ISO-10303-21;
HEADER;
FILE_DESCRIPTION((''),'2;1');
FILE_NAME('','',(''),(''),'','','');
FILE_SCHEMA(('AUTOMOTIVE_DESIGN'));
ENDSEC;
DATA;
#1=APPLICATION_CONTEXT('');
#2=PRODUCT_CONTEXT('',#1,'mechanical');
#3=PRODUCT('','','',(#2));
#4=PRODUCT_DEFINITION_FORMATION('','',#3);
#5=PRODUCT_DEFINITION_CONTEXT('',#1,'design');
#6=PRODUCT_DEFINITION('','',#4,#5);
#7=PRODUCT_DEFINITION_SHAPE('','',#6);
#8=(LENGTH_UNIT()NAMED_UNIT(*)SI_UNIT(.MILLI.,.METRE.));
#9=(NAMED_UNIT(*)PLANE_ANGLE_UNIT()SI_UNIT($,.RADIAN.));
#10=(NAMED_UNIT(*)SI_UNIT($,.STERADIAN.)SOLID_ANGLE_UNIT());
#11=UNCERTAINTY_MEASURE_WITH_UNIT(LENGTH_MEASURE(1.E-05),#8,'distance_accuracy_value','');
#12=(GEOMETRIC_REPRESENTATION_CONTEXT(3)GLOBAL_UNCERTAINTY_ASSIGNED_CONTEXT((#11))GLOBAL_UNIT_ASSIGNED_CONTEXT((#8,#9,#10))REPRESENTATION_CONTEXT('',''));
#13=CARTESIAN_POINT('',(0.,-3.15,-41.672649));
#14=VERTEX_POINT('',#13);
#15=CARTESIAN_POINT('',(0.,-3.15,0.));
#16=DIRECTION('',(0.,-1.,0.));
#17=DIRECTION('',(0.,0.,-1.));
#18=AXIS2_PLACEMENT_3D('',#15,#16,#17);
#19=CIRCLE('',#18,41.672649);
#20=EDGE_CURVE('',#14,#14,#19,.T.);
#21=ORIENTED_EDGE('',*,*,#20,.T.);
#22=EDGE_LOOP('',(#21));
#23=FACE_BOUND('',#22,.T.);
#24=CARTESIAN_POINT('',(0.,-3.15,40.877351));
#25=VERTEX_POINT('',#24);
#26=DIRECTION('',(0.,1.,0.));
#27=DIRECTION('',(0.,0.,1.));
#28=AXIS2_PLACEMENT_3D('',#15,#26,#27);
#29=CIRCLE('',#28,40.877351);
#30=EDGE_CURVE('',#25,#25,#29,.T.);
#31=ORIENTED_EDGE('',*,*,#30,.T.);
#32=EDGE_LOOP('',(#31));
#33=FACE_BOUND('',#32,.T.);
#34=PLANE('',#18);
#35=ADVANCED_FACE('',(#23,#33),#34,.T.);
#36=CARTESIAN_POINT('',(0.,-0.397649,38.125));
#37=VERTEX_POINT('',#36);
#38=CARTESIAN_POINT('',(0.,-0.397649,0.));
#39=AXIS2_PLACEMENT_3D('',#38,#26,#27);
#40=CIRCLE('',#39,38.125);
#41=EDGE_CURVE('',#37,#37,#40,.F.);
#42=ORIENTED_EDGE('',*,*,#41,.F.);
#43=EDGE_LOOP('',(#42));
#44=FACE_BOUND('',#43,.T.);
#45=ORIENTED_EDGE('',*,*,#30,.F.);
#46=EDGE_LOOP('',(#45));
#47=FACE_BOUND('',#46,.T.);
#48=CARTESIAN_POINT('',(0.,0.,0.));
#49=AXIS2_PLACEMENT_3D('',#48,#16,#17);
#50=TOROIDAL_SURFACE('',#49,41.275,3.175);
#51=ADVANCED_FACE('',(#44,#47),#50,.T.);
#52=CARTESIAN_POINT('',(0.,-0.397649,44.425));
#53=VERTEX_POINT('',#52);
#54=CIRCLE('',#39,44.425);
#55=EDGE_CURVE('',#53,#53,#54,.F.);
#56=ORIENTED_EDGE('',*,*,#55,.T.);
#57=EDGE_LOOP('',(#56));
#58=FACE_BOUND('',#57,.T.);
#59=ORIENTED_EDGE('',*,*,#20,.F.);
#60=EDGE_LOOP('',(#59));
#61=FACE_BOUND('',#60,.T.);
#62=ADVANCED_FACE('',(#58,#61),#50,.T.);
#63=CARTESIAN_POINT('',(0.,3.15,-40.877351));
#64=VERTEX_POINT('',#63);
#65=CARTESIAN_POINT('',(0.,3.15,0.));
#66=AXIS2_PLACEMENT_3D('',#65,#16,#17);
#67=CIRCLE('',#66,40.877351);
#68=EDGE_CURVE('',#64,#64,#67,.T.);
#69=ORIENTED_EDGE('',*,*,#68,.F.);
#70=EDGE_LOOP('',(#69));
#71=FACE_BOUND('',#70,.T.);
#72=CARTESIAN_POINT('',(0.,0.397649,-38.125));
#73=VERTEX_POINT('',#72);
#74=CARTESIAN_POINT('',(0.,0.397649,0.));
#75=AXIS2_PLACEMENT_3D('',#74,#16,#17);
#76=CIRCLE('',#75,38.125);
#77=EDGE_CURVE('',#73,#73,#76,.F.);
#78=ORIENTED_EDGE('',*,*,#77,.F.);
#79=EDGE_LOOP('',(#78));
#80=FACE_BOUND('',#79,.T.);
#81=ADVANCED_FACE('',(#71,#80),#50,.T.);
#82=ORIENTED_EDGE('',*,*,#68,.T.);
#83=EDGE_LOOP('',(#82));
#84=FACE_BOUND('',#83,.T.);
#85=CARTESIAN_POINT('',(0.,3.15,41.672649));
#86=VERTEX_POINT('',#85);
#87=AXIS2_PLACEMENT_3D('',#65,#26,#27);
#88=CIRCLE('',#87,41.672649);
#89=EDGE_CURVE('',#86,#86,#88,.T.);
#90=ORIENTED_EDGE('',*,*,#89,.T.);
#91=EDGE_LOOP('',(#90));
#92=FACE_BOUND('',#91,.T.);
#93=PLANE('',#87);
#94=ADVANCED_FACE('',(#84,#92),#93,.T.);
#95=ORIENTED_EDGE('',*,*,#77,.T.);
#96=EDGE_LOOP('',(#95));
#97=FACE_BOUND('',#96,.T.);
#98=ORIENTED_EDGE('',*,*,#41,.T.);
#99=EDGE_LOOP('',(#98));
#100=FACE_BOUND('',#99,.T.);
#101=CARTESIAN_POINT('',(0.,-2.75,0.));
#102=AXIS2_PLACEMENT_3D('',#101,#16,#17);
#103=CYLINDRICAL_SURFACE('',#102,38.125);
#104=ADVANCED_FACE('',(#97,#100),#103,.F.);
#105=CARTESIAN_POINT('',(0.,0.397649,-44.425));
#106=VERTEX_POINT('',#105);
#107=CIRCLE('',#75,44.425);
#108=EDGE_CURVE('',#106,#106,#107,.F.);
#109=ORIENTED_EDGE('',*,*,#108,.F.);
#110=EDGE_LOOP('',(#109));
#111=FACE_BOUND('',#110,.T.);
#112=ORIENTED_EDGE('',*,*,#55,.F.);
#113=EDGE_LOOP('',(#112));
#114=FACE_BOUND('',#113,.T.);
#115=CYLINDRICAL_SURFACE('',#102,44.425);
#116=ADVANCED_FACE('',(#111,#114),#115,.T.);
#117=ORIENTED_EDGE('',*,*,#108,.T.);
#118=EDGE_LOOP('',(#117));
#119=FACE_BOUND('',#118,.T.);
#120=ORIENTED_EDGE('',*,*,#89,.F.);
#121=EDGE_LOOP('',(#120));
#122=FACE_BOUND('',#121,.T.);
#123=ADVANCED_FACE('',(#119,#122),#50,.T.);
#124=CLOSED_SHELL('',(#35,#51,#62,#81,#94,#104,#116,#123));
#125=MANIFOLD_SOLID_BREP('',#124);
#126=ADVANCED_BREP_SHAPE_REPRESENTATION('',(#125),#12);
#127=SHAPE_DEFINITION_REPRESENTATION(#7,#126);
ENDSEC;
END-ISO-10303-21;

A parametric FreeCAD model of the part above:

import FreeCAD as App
import Part
import Sketcher
from FreeCAD import Vector
Q = App.Units.Quantity


def add_polygon(sketch, points):
    """Adds a closed chain of lines whose ends are joined by coincident constraints."""
    first, n = sketch.GeometryCount, len(points)
    for a, b in zip(points, points[1:] + points[:1]):
        sketch.addGeometry(Part.LineSegment(App.Vector(*a, 0), App.Vector(*b, 0)), False)
    for i in range(n):
        sketch.addConstraint(Sketcher.Constraint("Coincident", first + i, 2, first + (i + 1) % n, 1))

doc = App.newDocument("Part")
params = doc.addObject("Spreadsheet::Sheet", "Params")
for row, (alias, value) in enumerate([
    ("sketch1_diameter", "6.35 mm"),
    ("revolution_angle", "360 deg"),
    ("sketch2_width", "5 mm"),
    ("sketch2_width2", "6.3 mm"),
    ("groove_angle", "360 deg"),
], start=1):
    params.set(f"A{row}", alias)
    params.set(f"B{row}", "=" + value)
    params.setAlias(f"B{row}", alias)

body = doc.addObject("PartDesign::Body", "Body")

# Sketch on XY plane
sketch1 = doc.addObject("Sketcher::SketchObject", "Sketch")
body.addObject(sketch1)
sketch1.AttachmentSupport = (doc.XY_Plane, [""])
sketch1.MapMode = "FlatFace"
sketch1.addGeometry(Part.Circle(Vector(-41.3, 0, 0), Vector(0, 0, 1), 3.2), False)
sketch1.addConstraint(Sketcher.Constraint("PointOnObject", 0, 3, -1))
sketch1.addConstraint(Sketcher.Constraint("Diameter", 0, Q("6.35 mm")))
sketch1.addConstraint(Sketcher.Constraint("DistanceX", 0, 3, -1, 1, Q("41.275 mm")))
sketch1.setExpression("Constraints[1]", "Params.sketch1_diameter")
revolution = doc.addObject("PartDesign::Revolution", "Revolution")
body.addObject(revolution)
revolution.Profile = sketch1
revolution.ReferenceAxis = (sketch1, ["V_Axis"])
revolution.setExpression("Angle", "Params.revolution_angle")

# Sketch on XY plane
sketch2 = doc.addObject("Sketcher::SketchObject", "Sketch001")
body.addObject(sketch2)
sketch2.AttachmentSupport = (doc.XY_Plane, [""])
sketch2.MapMode = "FlatFace"
add_polygon(sketch2, [(-44, -3), (-44, -8), (-38, -8), (-38, -3)])  # lines 0-3
add_polygon(sketch2, [(-49, 3), (-49, -3), (-44, -3), (-44, 3)])  # lines 4-7
add_polygon(sketch2, [(-44, 8), (-44, 3), (-38, 3), (-38, 8)])  # lines 8-11
add_polygon(sketch2, [(-38, 3), (-38, -3), (0, -3), (0, 3)])  # lines 12-15
sketch2.addConstraint(Sketcher.Constraint("Vertical", 0))
sketch2.addConstraint(Sketcher.Constraint("Horizontal", 1))
sketch2.addConstraint(Sketcher.Constraint("Vertical", 2))
sketch2.addConstraint(Sketcher.Constraint("Horizontal", 3))
sketch2.addConstraint(Sketcher.Constraint("Vertical", 4))
sketch2.addConstraint(Sketcher.Constraint("Horizontal", 5))
sketch2.addConstraint(Sketcher.Constraint("Vertical", 6))
sketch2.addConstraint(Sketcher.Constraint("Horizontal", 7))
sketch2.addConstraint(Sketcher.Constraint("Vertical", 8))
sketch2.addConstraint(Sketcher.Constraint("Horizontal", 9))
sketch2.addConstraint(Sketcher.Constraint("Vertical", 10))
sketch2.addConstraint(Sketcher.Constraint("Horizontal", 11))
sketch2.addConstraint(Sketcher.Constraint("Vertical", 12))
sketch2.addConstraint(Sketcher.Constraint("Horizontal", 13))
sketch2.addConstraint(Sketcher.Constraint("Vertical", 14))
sketch2.addConstraint(Sketcher.Constraint("Horizontal", 15))
sketch2.addConstraint(Sketcher.Constraint("Coincident", 5, 2, 3, 2))
sketch2.addConstraint(Sketcher.Constraint("Coincident", 8, 2, 6, 2))
sketch2.addConstraint(Sketcher.Constraint("Coincident", 12, 2, 2, 2))
sketch2.addConstraint(Sketcher.Constraint("Coincident", 15, 2, 9, 2))
sketch2.addConstraint(Sketcher.Constraint("Symmetric", 13, 2, 14, 2, -1, 1))
sketch2.addConstraint(Sketcher.Constraint("Equal", 7, 0))
sketch2.addConstraint(Sketcher.Constraint("Equal", 11, 4))
sketch2.addConstraint(Sketcher.Constraint("Equal", 2, 8))
sketch2.addConstraint(Sketcher.Constraint("DistanceX", 5, 1, 5, 2, Q("5 mm")))
sketch2.addConstraint(Sketcher.Constraint("DistanceX", 1, 1, 1, 2, Q("6.3 mm")))
sketch2.addConstraint(Sketcher.Constraint("DistanceX", 13, 1, 13, 2, Q("38.125 mm")))
sketch2.setExpression("Constraints[40]", "Params.sketch2_width")
sketch2.setExpression("Constraints[41]", "Params.sketch2_width2")
groove = doc.addObject("PartDesign::Groove", "Groove")
body.addObject(groove)
groove.Profile = sketch2
groove.ReferenceAxis = (sketch2, ["V_Axis"])
groove.setExpression("Angle", "Params.groove_angle")

doc.recompute()
